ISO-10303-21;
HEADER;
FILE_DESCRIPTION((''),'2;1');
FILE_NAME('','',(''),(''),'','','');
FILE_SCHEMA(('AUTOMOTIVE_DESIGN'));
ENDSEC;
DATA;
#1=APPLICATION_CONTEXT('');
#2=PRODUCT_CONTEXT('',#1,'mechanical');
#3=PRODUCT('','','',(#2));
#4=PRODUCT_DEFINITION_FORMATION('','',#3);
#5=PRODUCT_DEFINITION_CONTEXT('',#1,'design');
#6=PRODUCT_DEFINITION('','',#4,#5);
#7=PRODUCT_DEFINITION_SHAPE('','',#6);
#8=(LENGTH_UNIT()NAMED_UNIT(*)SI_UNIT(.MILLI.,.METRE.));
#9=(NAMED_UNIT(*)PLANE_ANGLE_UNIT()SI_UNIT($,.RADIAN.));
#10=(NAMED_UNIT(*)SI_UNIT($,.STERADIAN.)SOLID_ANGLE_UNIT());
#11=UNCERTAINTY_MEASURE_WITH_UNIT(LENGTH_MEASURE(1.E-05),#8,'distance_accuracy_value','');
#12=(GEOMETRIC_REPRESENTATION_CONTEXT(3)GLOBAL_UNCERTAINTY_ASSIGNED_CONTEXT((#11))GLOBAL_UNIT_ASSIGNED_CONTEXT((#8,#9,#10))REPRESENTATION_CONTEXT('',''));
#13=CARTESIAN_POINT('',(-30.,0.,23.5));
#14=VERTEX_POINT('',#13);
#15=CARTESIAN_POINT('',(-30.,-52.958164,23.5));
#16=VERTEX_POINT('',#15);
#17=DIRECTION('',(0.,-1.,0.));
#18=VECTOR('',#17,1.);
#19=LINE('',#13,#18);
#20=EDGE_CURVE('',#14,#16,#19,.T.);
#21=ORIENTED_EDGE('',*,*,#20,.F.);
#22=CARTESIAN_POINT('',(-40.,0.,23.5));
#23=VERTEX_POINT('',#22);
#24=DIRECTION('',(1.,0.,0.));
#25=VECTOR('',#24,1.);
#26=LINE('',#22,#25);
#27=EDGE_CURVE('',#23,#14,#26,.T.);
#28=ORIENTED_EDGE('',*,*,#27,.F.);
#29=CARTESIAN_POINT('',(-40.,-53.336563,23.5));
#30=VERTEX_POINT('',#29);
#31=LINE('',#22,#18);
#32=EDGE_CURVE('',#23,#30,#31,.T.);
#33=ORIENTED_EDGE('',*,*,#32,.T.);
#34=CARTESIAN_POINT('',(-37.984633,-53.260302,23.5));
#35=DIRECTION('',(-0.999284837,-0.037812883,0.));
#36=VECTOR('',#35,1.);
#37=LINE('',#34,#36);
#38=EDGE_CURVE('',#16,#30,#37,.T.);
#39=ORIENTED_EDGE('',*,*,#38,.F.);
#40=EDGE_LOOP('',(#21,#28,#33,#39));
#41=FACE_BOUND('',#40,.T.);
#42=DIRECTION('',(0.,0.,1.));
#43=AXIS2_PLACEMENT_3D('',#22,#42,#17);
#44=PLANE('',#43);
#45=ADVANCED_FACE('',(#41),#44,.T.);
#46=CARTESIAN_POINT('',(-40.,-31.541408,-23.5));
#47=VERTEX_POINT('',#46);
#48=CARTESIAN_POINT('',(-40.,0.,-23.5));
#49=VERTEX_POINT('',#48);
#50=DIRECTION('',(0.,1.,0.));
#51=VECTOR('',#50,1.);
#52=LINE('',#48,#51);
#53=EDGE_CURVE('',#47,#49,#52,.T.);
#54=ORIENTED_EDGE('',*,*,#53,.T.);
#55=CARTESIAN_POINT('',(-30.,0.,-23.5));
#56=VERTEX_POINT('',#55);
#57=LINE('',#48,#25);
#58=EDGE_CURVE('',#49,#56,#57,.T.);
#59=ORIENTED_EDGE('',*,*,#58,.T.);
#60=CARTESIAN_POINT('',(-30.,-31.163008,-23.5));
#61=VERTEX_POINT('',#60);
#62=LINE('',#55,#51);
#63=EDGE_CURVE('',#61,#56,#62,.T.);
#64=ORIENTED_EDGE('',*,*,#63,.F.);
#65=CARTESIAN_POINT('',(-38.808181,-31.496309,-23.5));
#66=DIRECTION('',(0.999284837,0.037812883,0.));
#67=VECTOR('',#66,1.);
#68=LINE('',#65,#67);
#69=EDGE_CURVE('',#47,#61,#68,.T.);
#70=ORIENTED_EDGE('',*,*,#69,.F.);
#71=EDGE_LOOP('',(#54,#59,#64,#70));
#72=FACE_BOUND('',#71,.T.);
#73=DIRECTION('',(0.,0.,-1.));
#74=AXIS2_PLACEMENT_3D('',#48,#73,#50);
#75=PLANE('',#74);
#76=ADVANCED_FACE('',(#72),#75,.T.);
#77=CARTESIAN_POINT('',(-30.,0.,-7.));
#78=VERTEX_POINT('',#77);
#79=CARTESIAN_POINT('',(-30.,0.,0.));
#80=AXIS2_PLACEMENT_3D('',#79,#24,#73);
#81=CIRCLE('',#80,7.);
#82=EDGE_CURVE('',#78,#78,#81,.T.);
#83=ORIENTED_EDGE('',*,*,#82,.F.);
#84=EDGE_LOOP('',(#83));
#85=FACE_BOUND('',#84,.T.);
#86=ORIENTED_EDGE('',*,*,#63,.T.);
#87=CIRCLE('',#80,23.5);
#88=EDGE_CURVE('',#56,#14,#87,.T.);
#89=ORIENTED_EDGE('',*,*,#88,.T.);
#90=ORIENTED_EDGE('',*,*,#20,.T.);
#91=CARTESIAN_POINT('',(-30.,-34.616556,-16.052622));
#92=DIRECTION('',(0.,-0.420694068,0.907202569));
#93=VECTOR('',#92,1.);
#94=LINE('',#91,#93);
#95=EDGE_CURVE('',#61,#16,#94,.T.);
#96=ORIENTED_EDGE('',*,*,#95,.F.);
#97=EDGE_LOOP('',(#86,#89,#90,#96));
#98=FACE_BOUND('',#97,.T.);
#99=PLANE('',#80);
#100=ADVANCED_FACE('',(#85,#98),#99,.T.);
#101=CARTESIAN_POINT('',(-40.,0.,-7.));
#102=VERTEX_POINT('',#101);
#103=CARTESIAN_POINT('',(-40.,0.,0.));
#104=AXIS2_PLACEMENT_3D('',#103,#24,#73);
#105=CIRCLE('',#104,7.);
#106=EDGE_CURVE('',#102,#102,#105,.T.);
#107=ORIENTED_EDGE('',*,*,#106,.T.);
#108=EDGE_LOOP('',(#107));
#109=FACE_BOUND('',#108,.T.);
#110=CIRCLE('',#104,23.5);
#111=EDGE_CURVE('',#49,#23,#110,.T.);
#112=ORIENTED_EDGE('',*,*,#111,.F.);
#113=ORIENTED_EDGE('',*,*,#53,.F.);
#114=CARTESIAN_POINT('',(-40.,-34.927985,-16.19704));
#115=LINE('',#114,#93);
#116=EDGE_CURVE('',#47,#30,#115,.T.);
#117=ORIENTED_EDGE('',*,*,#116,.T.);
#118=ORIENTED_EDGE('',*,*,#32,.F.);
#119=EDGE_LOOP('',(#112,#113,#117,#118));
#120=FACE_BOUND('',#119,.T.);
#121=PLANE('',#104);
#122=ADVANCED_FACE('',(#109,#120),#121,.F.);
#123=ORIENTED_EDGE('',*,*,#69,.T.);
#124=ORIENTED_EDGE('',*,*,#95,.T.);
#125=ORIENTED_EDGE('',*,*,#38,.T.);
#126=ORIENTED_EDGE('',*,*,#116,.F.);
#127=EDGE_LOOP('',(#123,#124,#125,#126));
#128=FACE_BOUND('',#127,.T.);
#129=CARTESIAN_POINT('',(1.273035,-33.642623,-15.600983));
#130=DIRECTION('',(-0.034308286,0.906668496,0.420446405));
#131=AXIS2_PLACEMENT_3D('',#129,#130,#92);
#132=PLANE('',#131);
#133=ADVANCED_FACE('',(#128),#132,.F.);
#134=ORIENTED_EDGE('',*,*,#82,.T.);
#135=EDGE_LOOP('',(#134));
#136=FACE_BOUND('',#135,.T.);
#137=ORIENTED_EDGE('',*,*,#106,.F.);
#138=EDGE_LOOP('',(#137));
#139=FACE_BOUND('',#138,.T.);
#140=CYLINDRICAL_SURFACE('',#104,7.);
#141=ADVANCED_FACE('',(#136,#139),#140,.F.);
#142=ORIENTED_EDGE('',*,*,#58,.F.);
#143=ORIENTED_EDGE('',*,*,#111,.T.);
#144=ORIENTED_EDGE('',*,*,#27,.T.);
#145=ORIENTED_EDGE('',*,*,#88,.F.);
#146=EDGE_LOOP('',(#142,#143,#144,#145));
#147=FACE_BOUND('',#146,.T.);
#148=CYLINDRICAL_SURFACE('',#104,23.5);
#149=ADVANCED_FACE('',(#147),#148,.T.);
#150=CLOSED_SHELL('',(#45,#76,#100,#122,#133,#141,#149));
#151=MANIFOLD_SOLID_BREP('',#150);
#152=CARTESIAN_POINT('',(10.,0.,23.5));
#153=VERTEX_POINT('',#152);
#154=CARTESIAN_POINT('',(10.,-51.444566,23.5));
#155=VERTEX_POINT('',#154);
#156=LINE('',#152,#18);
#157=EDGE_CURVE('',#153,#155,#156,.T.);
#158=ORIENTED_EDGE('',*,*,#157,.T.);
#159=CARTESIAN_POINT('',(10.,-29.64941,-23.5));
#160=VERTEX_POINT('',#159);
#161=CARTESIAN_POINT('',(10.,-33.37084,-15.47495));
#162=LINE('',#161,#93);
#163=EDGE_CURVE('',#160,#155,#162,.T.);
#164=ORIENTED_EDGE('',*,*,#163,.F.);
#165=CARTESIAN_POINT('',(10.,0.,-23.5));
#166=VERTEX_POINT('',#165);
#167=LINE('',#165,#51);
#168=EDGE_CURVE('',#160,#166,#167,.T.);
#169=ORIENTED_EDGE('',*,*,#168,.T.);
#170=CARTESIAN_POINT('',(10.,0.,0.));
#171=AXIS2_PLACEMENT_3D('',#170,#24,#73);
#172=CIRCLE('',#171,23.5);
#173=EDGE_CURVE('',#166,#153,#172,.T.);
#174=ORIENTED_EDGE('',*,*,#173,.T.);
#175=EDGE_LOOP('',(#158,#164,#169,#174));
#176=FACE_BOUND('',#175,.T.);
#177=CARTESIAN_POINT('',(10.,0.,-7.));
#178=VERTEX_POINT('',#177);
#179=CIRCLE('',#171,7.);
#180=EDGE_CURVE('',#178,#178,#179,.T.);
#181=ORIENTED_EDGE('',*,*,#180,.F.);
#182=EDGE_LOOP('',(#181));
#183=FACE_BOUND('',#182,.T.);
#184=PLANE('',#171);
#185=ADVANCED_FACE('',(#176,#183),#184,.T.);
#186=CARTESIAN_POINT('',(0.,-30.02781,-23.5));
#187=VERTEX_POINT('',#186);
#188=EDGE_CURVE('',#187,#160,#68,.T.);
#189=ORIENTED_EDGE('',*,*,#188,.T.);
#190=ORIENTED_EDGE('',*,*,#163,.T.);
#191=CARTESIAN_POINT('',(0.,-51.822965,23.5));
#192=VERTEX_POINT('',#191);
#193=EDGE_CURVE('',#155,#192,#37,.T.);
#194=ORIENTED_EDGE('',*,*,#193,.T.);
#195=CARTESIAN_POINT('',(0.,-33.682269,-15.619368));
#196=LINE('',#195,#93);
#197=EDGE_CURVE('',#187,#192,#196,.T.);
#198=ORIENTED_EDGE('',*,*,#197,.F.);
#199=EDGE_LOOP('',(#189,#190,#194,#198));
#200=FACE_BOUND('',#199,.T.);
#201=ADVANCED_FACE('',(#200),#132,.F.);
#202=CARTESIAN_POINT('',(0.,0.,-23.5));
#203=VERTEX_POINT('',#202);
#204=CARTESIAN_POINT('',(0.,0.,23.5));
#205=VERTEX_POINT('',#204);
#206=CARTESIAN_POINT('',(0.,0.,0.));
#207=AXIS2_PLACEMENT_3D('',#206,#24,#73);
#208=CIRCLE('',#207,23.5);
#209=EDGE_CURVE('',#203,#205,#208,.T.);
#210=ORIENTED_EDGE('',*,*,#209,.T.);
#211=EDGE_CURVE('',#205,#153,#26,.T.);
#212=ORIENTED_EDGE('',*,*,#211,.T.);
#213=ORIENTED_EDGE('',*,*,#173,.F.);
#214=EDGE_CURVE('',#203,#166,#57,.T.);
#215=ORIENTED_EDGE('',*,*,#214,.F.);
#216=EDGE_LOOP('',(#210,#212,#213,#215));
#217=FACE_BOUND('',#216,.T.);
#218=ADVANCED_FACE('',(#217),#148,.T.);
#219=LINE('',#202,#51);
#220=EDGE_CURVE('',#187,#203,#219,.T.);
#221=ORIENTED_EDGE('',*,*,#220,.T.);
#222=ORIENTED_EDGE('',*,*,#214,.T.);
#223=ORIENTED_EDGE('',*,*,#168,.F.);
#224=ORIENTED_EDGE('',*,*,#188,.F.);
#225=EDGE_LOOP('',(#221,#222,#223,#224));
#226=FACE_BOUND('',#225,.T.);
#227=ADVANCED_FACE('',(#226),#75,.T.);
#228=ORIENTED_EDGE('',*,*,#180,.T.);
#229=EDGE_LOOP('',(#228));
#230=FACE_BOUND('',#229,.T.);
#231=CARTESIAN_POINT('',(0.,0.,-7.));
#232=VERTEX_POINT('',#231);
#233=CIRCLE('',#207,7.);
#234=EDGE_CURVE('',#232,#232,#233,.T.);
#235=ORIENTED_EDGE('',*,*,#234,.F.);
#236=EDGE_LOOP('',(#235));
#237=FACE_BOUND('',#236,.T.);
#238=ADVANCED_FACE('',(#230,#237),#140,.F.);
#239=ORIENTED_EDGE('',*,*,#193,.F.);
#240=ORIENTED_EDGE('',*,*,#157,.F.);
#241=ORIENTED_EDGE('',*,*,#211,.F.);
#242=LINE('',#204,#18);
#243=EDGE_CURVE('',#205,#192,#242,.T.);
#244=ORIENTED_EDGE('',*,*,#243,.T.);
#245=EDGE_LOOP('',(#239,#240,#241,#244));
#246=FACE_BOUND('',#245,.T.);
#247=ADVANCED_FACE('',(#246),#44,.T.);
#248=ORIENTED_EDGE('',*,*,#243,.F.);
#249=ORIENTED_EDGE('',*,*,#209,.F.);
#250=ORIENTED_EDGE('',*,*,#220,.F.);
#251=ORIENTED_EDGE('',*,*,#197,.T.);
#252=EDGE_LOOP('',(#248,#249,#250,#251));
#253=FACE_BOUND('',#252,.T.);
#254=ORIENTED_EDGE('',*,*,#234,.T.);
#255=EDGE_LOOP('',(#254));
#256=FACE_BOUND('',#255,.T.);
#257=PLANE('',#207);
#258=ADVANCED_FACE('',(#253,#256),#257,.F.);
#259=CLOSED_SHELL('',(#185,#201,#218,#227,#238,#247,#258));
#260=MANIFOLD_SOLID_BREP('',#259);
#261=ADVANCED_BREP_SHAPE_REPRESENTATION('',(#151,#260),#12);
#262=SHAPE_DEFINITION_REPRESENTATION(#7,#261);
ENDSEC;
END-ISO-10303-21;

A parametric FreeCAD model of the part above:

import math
import FreeCAD as App
import Part
import Sketcher

V = App.Vector
Q = App.Units.Quantity

doc = App.newDocument("Part")
body = doc.addObject("PartDesign::Body", "Body")
body.AllowCompound = True

# Sketch on YZ plane
sketch1 = body.newObject("Sketcher::SketchObject", "Sketch")
sketch1.AttachmentSupport = (doc.getObject("YZ_Plane"), [""])
sketch1.MapMode = "FlatFace"
sketch1.addGeometry([
    Part.LineSegment(V(0, 24, 0), V(-107, 24, 0)),  # 0
    Part.LineSegment(V(-107, 24, 0), V(-107, -24, 0)),  # 1
    Part.LineSegment(V(-107, -24, 0), V(0, -24, 0)),  # 2
    Part.ArcOfCircle(Part.Circle(V(0, 0, 0), V(0, 0, 1), 24), math.radians(-90), math.radians(90)),  # 3
    Part.Circle(V(0, 0, 0), V(0, 0, 1), 7),  # 4
], False)
sketch1.addConstraint([
    Sketcher.Constraint("Coincident", 0, 2, 1, 1),
    Sketcher.Constraint("Coincident", 1, 2, 2, 1),
    Sketcher.Constraint("Tangent", 2, 2, 3, 1),
    Sketcher.Constraint("Tangent", 3, 2, 0, 1),
    Sketcher.Constraint("Horizontal", 0),
    Sketcher.Constraint("Vertical", 1),
    Sketcher.Constraint("Horizontal", 2),
    Sketcher.Constraint("Coincident", 3, 3, -1, 1),
    Sketcher.Constraint("Coincident", 4, 3, -1, 1),
    Sketcher.Constraint("Diameter", 4, Q("14 mm")),
    Sketcher.Constraint("Radius", 3, Q("23.5 mm")),
    Sketcher.Constraint("DistanceX", 0, 2, 0, 1, Q("107.176979 mm")),
])
pad1 = body.newObject("PartDesign::Pad", "Pad")
pad1.Profile = sketch1
pad1.Type = "TwoLengths"
pad1.Length = 10
pad1.Length2 = 40

# Sketch on YZ plane
sketch2 = body.newObject("Sketcher::SketchObject", "Sketch001")
sketch2.AttachmentSupport = (doc.getObject("YZ_Plane"), [""])
sketch2.MapMode = "FlatFace"
sketch2.addGeometry([
    Part.LineSegment(V(0, 24, 0), V(-107, 24, 0)),  # 0
    Part.LineSegment(V(-107, 24, 0), V(-107, -24, 0)),  # 1
    Part.LineSegment(V(-107, -24, 0), V(0, -24, 0)),  # 2
    Part.ArcOfCircle(Part.Circle(V(0, 0, 0), V(0, 0, 1), 24), math.radians(-90), math.radians(90)),  # 3
    Part.Circle(V(0, 0, 0), V(0, 0, 1), 7),  # 4
], False)
sketch2.addConstraint([
    Sketcher.Constraint("Coincident", 0, 2, 1, 1),
    Sketcher.Constraint("Coincident", 1, 2, 2, 1),
    Sketcher.Constraint("Tangent", 2, 2, 3, 1),
    Sketcher.Constraint("Tangent", 3, 2, 0, 1),
    Sketcher.Constraint("Horizontal", 0),
    Sketcher.Constraint("Vertical", 1),
    Sketcher.Constraint("Horizontal", 2),
    Sketcher.Constraint("Coincident", 3, 3, -1, 1),
    Sketcher.Constraint("Coincident", 4, 3, -1, 1),
    Sketcher.Constraint("Diameter", 4, Q("14 mm")),
    Sketcher.Constraint("Radius", 3, Q("23.5 mm")),
    Sketcher.Constraint("DistanceX", 0, 2, 0, 1, Q("107.176979 mm")),
])
pocket1 = body.newObject("PartDesign::Pocket", "Pocket")
pocket1.Profile = sketch2
pocket1.Length = 30

# Sketch on an angled plane
sketch3 = body.newObject("Sketcher::SketchObject", "Sketch002")
sketch3.Placement = App.Placement(V(1.273035, -33.642623, -15.600983), App.Rotation(V(0.999411297, 0.031124565, 0.014433292), V(0, 0.420694068, -0.907202568), V(-0.034308286, 0.906668496, 0.420446405), "ZXY"))
sketch3.addGeometry(Part.Circle(V(0, 0, 0), V(0, 0, 1), 285), False)
sketch3.addConstraint([
    Sketcher.Constraint("Coincident", 0, 3, -1, 1),
    Sketcher.Constraint("Diameter", 0, Q("570.793887 mm")),
])
pocket2 = body.newObject("PartDesign::Pocket", "Pocket001")
pocket2.Profile = sketch3
pocket2.Length = 284.687476

doc.recompute()
